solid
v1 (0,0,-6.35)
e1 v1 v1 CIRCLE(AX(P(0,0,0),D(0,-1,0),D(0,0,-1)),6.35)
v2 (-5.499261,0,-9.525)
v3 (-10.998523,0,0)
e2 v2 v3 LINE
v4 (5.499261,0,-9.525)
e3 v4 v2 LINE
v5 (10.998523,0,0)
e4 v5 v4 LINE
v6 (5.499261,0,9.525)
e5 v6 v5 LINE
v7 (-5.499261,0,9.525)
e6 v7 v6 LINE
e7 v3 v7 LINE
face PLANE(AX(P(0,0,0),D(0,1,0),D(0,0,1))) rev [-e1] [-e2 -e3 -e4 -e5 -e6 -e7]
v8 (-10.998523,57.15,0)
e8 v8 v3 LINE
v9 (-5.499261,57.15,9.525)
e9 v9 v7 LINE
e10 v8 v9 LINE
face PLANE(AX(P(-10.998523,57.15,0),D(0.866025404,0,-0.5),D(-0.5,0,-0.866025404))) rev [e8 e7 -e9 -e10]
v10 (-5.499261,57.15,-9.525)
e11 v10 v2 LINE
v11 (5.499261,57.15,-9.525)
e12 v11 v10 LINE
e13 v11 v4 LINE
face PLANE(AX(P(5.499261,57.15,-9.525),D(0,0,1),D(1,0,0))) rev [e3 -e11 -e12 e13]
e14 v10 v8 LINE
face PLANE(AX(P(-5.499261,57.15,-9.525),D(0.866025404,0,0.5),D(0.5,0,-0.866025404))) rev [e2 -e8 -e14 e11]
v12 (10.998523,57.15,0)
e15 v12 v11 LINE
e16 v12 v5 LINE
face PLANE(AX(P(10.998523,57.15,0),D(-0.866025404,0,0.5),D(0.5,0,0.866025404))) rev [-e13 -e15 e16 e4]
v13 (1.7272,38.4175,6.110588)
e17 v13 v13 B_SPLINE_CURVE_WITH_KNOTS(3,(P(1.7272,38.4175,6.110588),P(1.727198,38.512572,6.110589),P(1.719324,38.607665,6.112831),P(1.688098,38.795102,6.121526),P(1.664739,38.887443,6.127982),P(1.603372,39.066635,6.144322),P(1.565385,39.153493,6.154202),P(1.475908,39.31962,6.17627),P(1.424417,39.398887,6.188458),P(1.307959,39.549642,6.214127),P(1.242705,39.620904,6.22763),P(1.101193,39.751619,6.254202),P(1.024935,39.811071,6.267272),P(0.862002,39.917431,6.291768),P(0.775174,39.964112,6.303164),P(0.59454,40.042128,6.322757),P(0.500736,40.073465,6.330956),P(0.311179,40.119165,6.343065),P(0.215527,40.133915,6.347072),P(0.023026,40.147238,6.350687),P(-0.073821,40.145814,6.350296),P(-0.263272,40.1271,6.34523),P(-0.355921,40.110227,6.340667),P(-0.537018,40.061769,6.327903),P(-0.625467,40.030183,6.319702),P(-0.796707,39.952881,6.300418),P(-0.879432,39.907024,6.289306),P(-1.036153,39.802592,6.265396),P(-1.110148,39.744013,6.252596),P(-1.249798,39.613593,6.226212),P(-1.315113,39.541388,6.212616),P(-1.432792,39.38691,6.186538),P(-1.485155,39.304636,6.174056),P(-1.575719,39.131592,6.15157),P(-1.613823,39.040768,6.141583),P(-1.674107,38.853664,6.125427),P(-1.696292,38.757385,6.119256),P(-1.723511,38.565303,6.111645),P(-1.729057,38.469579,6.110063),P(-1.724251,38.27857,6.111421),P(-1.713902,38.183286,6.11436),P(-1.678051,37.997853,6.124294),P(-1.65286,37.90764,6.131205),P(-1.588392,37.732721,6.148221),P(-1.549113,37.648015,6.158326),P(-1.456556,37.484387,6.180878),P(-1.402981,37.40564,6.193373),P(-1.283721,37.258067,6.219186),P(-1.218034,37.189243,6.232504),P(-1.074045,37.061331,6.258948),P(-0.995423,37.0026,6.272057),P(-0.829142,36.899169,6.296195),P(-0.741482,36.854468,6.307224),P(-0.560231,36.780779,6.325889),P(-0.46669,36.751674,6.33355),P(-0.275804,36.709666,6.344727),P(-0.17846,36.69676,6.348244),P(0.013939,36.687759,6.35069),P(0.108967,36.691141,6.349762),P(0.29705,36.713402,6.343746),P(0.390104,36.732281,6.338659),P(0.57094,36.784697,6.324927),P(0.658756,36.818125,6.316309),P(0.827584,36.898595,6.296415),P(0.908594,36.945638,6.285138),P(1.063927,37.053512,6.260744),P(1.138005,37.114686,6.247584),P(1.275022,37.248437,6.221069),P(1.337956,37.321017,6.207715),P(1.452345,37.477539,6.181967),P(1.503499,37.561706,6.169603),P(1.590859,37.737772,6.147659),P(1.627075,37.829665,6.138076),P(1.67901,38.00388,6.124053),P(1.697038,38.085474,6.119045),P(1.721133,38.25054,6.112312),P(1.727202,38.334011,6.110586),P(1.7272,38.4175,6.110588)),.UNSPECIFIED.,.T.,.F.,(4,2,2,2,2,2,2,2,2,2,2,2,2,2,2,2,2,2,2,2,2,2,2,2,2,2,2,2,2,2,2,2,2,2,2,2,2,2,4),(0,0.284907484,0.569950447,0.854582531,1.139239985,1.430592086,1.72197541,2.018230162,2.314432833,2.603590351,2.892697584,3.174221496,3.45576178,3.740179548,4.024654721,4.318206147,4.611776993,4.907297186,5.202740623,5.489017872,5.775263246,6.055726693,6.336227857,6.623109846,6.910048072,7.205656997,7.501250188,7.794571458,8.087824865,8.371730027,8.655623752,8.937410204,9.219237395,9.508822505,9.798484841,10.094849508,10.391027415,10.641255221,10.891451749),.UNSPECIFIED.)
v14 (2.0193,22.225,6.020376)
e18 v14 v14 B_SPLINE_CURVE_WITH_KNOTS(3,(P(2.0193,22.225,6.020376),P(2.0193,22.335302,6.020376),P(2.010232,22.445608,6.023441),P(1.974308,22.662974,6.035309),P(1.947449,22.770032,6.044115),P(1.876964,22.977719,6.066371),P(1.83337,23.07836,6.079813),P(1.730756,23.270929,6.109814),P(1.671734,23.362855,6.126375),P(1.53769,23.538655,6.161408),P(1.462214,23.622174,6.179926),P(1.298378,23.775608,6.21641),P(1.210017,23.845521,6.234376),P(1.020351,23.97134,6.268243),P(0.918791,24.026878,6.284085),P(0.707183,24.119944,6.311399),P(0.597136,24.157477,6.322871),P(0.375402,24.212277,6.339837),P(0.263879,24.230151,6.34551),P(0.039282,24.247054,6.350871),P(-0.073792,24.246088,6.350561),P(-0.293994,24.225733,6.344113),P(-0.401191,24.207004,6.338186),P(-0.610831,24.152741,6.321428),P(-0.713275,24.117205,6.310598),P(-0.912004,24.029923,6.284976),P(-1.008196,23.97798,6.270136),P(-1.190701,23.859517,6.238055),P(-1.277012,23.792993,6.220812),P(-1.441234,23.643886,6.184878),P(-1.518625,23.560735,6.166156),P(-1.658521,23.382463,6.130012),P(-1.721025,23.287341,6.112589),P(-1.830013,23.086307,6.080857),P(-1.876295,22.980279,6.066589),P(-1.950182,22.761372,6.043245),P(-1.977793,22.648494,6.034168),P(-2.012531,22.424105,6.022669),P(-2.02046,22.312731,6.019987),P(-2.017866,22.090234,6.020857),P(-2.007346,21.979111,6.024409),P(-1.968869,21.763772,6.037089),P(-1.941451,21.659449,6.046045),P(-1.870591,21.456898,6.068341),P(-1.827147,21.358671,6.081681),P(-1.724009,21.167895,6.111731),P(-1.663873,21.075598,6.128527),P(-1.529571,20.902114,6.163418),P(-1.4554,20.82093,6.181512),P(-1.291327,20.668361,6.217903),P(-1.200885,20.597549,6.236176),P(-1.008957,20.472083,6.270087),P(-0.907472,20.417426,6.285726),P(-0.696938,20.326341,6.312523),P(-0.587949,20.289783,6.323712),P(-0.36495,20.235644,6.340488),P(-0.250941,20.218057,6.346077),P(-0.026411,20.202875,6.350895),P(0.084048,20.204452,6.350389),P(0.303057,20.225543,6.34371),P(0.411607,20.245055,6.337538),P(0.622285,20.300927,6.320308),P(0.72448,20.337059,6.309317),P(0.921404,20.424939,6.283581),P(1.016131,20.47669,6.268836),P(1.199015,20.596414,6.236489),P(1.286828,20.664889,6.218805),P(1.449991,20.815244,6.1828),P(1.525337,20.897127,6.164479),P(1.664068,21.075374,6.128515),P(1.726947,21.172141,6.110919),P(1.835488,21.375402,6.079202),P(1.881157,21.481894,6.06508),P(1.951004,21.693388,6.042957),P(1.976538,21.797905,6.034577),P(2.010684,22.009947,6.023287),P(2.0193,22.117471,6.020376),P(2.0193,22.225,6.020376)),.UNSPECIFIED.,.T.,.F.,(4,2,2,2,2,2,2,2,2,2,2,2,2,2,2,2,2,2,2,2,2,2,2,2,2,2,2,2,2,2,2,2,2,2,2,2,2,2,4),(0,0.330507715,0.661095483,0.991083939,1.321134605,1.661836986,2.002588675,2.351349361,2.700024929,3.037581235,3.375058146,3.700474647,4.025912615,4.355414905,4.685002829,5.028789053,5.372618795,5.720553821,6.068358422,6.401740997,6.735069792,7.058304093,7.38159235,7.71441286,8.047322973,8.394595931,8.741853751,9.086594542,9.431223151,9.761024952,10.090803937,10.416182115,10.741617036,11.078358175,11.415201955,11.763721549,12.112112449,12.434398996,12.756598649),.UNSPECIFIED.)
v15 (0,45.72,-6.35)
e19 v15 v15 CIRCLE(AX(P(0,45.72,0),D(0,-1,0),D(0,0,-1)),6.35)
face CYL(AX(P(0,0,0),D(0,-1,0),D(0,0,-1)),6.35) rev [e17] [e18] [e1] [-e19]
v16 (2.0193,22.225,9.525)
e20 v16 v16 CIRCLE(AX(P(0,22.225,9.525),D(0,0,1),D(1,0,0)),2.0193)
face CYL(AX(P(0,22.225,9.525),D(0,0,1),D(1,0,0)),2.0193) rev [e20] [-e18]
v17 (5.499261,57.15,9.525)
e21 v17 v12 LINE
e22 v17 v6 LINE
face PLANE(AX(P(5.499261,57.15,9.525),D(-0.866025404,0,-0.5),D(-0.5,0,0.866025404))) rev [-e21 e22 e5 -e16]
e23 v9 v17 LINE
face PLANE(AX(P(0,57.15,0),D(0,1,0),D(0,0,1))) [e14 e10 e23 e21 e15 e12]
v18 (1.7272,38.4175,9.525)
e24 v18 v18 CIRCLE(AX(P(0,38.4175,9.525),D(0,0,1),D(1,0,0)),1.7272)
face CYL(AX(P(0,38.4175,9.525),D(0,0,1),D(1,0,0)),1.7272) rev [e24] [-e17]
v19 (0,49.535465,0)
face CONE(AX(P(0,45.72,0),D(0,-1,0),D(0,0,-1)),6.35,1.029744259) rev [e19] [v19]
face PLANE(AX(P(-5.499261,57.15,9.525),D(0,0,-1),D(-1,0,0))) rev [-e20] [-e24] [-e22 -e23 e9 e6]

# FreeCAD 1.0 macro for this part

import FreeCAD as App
import Part
import Sketcher
Q = App.Units.Quantity

doc = App.newDocument("Part")
params = doc.addObject("Spreadsheet::Sheet", "Params")
for row, (alias, value) in enumerate([
    ("pad1_length", "2.25 in"),
    ("sketch2_diameter", "0.5 in"),
    ("hole_diameter", "0.5 in"),
    ("hole_depth", "1.8 in"),
    ("sketch3_diameter", "0.159 in"),
    ("sketch4_diameter", "0.136 in"),
], start=1):
    params.set(f"A{row}", alias)
    params.set(f"B{row}", "=" + value)
    params.setAlias(f"B{row}", alias)

body = doc.addObject("PartDesign::Body", "Body")

# Sketch on XZ plane
sketch1 = body.newObject("Sketcher::SketchObject", "Sketch")
sketch1.AttachmentSupport = (doc.getObject("XZ_Plane"), [""])
sketch1.MapMode = "FlatFace"
sketch1.addGeometry(Part.LineSegment(App.Vector(5, 10, 0), App.Vector(11, 0, 0)), False)
sketch1.addGeometry(Part.LineSegment(App.Vector(11, 0, 0), App.Vector(5, -10, 0)), False)
sketch1.addGeometry(Part.LineSegment(App.Vector(5, -10, 0), App.Vector(-5, -10, 0)), False)
sketch1.addGeometry(Part.LineSegment(App.Vector(-5, -10, 0), App.Vector(-11, 0, 0)), False)
sketch1.addGeometry(Part.LineSegment(App.Vector(-11, 0, 0), App.Vector(-5, 10, 0)), False)
sketch1.addGeometry(Part.LineSegment(App.Vector(-5, 10, 0), App.Vector(5, 10, 0)), False)
sketch1.addConstraint(Sketcher.Constraint("Coincident", 0, 2, 1, 1))
sketch1.addConstraint(Sketcher.Constraint("Coincident", 1, 2, 2, 1))
sketch1.addConstraint(Sketcher.Constraint("Coincident", 2, 2, 3, 1))
sketch1.addConstraint(Sketcher.Constraint("Coincident", 3, 2, 4, 1))
sketch1.addConstraint(Sketcher.Constraint("Coincident", 4, 2, 5, 1))
sketch1.addConstraint(Sketcher.Constraint("Coincident", 5, 2, 0, 1))
sketch1.addConstraint(Sketcher.Constraint("Horizontal", 2))
sketch1.addConstraint(Sketcher.Constraint("Horizontal", 5))
sketch1.addConstraint(Sketcher.Constraint("Symmetric", 0, 2, 3, 2, -1, 1))
sketch1.addConstraint(Sketcher.Constraint("Symmetric", 1, 2, 4, 2, -1, 1))
sketch1.addConstraint(Sketcher.Constraint("PointOnObject", 0, 2, -1))
sketch1.addConstraint(Sketcher.Constraint("Parallel", 0, 3))
sketch1.addConstraint(Sketcher.Constraint("Vertical", 2, 2, 4, 2))
sketch1.addConstraint(Sketcher.Constraint("Angle", 0, Q("-60 deg")))
sketch1.addConstraint(Sketcher.Constraint("DistanceY", 2, 2, 4, 2, Q("0.75 in")))
sketch1.addConstraint(Sketcher.Constraint("DistanceX", 2, 2, 2, 1, 10.998523))
pad1 = body.newObject("PartDesign::Pad", "Pad")
pad1.Profile = sketch1
pad1.setExpression("Length", "Params.pad1_length")
pad1.Reversed = True

# Sketch on XZ plane
sketch2 = body.newObject("Sketcher::SketchObject", "Sketch001")
sketch2.AttachmentSupport = (doc.getObject("XZ_Plane"), [""])
sketch2.MapMode = "FlatFace"
sketch2.addGeometry(Part.Circle(App.Vector(0, 0, 0), App.Vector(0, 0, 1), 6), False)
sketch2.addConstraint(Sketcher.Constraint("Coincident", 0, 3, -1, 1))
sketch2.addConstraint(Sketcher.Constraint("Diameter", 0, Q("0.5 in")))
sketch2.setExpression("Constraints[1]", "Params.sketch2_diameter")
doc.recompute()
hole = body.newObject("PartDesign::Hole", "Hole")
hole.Profile = sketch2
hole.ThreadType = "None"
hole.setExpression("Diameter", "Params.hole_diameter")
hole.DepthType = "Dimension"
hole.setExpression("Depth", "Params.hole_depth")
hole.DrillPoint = "Angled"
hole.DrillPointAngle = 118

# Sketch on XY plane
sketch3 = body.newObject("Sketcher::SketchObject", "Sketch002")
sketch3.AttachmentSupport = (doc.getObject("XY_Plane"), [""])
sketch3.MapMode = "FlatFace"
sketch3.AttachmentOffset = App.Placement(App.Vector(0, 0, 0.375 * 25.4), App.Rotation())
sketch3.addGeometry(Part.Circle(App.Vector(0, 22.2, 0), App.Vector(0, 0, 1), 2), False)
sketch3.addConstraint(Sketcher.Constraint("PointOnObject", 0, 3, -2))
sketch3.addConstraint(Sketcher.Constraint("Diameter", 0, Q("0.159 in")))
sketch3.addConstraint(Sketcher.Constraint("DistanceY", -1, 1, 0, 3, Q("0.875 in")))
sketch3.setExpression("Constraints[1]", "Params.sketch3_diameter")
pocket1 = body.newObject("PartDesign::Pocket", "Pocket")
pocket1.Profile = sketch3
pocket1.Type = "UpToFirst"

# Sketch on XY plane
sketch4 = body.newObject("Sketcher::SketchObject", "Sketch003")
sketch4.AttachmentSupport = (doc.getObject("XY_Plane"), [""])
sketch4.MapMode = "FlatFace"
sketch4.AttachmentOffset = App.Placement(App.Vector(0, 0, 0.375 * 25.4), App.Rotation())
sketch4.addGeometry(Part.Circle(App.Vector(0, 38.4, 0), App.Vector(0, 0, 1), 1.7), False)
sketch4.addConstraint(Sketcher.Constraint("PointOnObject", 0, 3, -2))
sketch4.addConstraint(Sketcher.Constraint("Diameter", 0, Q("0.136 in")))
sketch4.addConstraint(Sketcher.Constraint("DistanceY", -1, 1, 0, 3, Q("1.5125 in")))
sketch4.setExpression("Constraints[1]", "Params.sketch4_diameter")
pocket2 = body.newObject("PartDesign::Pocket", "Pocket001")
pocket2.Profile = sketch4
pocket2.Type = "UpToFirst"

doc.recompute()
